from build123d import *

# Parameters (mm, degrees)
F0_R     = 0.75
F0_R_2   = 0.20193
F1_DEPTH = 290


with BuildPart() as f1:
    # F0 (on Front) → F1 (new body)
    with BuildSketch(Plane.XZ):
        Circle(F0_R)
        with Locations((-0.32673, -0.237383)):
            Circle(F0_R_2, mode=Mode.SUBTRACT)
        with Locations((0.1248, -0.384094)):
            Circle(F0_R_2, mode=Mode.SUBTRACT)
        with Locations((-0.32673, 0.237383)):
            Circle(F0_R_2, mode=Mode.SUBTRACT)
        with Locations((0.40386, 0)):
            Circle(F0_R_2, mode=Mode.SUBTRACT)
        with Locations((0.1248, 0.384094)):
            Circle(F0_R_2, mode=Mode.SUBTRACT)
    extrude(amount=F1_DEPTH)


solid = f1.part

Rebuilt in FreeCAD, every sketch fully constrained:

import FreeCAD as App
import Part
import Sketcher

V = App.Vector
Q = App.Units.Quantity

doc = App.newDocument("Part")
body = doc.addObject("PartDesign::Body", "Body")

# Sketch on XZ plane
sketch1 = body.newObject("Sketcher::SketchObject", "Sketch")
sketch1.AttachmentSupport = (doc.getObject("XZ_Plane"), [""])
sketch1.MapMode = "FlatFace"
sketch1.addGeometry([
    Part.Circle(V(0, 0, 0), V(0, 0, 1), 0.75),  # 0
    Part.Circle(V(-0.33, -0.24, 0), V(0, 0, 1), 0.2),  # 1
    Part.Circle(V(0.12, -0.38, 0), V(0, 0, 1), 0.2),  # 2
    Part.Circle(V(-0.33, 0.24, 0), V(0, 0, 1), 0.2),  # 3
    Part.Circle(V(0.4, 0, 0), V(0, 0, 1), 0.2),  # 4
    Part.Circle(V(0.12, 0.38, 0), V(0, 0, 1), 0.2),  # 5
], False)
sketch1.addConstraint([
    Sketcher.Constraint("Coincident", 0, 3, -1, 1),
    Sketcher.Constraint("Equal", 1, 2),
    Sketcher.Constraint("Equal", 2, 3),
    Sketcher.Constraint("Equal", 3, 4),
    Sketcher.Constraint("Equal", 4, 5),
    Sketcher.Constraint("Symmetric", 1, 3, 3, 3, -1),
    Sketcher.Constraint("Symmetric", 2, 3, 5, 3, -1),
    Sketcher.Constraint("PointOnObject", 4, 3, -1),
    Sketcher.Constraint("Diameter", 0, Q("1.5 mm")),
    Sketcher.Constraint("Diameter", 1, Q("0.40386 mm")),
    Sketcher.Constraint("DistanceX", -1, 1, 2, 3, Q("0.1248 mm")),
    Sketcher.Constraint("DistanceX", 1, 3, -1, 1, Q("0.32673 mm")),
    Sketcher.Constraint("DistanceX", -1, 1, 4, 3, Q("0.40386 mm")),
    Sketcher.Constraint("DistanceY", 2, 3, 1, 3, Q("0.146711 mm")),
    Sketcher.Constraint("DistanceY", 1, 3, -1, 1, Q("0.237383 mm")),
])
pad1 = body.newObject("PartDesign::Pad", "Pad")
pad1.Profile = sketch1
pad1.Length = 290

doc.recompute()
